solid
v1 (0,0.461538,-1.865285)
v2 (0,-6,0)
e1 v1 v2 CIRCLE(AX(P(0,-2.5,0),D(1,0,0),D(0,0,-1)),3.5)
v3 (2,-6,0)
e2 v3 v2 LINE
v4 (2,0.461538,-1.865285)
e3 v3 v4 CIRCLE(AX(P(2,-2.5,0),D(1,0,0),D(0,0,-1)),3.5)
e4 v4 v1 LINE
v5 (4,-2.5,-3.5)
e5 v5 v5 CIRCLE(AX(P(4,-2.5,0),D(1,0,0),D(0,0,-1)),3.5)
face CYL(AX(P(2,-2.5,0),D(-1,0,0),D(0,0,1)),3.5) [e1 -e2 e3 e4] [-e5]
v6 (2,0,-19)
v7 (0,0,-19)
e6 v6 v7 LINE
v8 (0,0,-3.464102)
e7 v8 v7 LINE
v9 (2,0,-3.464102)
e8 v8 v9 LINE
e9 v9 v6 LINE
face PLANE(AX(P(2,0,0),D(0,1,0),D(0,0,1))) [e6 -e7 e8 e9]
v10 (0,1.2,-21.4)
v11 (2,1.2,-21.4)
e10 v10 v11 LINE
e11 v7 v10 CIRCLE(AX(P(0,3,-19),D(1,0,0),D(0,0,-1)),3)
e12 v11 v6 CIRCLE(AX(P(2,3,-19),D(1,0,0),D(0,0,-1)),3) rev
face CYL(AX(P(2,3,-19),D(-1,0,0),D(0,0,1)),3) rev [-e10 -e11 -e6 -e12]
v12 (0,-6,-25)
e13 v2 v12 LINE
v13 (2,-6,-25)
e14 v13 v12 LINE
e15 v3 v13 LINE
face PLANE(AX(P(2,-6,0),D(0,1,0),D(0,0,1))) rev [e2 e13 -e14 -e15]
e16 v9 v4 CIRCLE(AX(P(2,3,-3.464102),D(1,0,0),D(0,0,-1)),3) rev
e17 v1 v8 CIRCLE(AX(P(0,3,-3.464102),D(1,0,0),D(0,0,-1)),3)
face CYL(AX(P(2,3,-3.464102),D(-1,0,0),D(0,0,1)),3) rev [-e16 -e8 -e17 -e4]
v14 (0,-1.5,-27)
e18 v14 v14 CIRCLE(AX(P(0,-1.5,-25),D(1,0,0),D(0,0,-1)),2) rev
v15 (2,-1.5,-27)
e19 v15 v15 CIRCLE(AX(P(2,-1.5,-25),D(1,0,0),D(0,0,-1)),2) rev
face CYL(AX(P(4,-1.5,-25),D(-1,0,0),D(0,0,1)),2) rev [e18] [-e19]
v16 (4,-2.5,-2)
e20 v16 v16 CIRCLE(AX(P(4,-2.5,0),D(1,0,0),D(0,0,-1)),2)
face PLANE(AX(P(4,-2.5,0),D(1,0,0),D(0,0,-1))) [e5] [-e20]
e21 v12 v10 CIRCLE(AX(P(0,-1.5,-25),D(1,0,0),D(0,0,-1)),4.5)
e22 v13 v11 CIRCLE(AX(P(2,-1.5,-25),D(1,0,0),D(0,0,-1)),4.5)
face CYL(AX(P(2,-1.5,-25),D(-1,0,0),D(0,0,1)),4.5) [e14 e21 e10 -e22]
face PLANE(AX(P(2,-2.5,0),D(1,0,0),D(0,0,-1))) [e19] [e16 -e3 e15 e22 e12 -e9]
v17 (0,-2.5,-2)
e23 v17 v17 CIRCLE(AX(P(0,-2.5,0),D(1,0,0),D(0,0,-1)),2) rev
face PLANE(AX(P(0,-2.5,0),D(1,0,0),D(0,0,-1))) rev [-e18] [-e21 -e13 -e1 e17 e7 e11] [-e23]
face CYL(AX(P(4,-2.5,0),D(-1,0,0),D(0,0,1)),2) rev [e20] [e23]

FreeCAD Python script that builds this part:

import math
import FreeCAD as App
import Part
import Sketcher


def edges_at(feature, points):
    """Names of the edges that pass closest to the given points."""
    edges = feature.Shape.Edges
    near = lambda p: min(range(len(edges)), key=lambda i: edges[i].distToShape(Part.Vertex(*p))[0])
    return sorted({f"Edge{near(p) + 1}" for p in points})

doc = App.newDocument("Part")
body = doc.addObject("PartDesign::Body", "Body")

# Sketch on YZ plane
sketch1 = doc.addObject("Sketcher::SketchObject", "Sketch")
body.addObject(sketch1)
sketch1.AttachmentSupport = (doc.YZ_Plane, [""])
sketch1.MapMode = "FlatFace"
sketch1.addGeometry(Part.ArcOfCircle(Part.Circle(App.Vector(-2.5, 0, 0), App.Vector(0, 0, 1), 3.5), math.radians(-44), math.radians(180)), False)
sketch1.addGeometry(Part.LineSegment(App.Vector(-6, 0, 0), App.Vector(-6, -25, 0)), False)
sketch1.addGeometry(Part.ArcOfCircle(Part.Circle(App.Vector(-1.5, -25, 0), App.Vector(0, 0, 1), 4.5), math.radians(180), math.radians(431)), False)
sketch1.addGeometry(Part.LineSegment(App.Vector(0, -20.8, 0), App.Vector(0, -2.4, 0)), False)
sketch1.addConstraint(Sketcher.Constraint("Tangent", 0, 2, 1, 1))
sketch1.addConstraint(Sketcher.Constraint("Tangent", 1, 2, 2, 1))
sketch1.addConstraint(Sketcher.Constraint("Coincident", 2, 2, 3, 1))
sketch1.addConstraint(Sketcher.Constraint("Coincident", 3, 2, 0, 1))
sketch1.addConstraint(Sketcher.Constraint("Vertical", 1))
sketch1.addConstraint(Sketcher.Constraint("Vertical", 3))
sketch1.addConstraint(Sketcher.Constraint("PointOnObject", 0, 3, -1))
sketch1.addConstraint(Sketcher.Constraint("PointOnObject", 2, 2, -2))
sketch1.addConstraint(Sketcher.Constraint("Radius", 0, 3.5))
sketch1.addConstraint(Sketcher.Constraint("Radius", 2, 4.5))
sketch1.addConstraint(Sketcher.Constraint("DistanceY", 1, 2, 1, 1, 25.0))
sketch1.addConstraint(Sketcher.Constraint("DistanceX", 0, 2, -1, 1, 6.0))
pad1 = doc.addObject("PartDesign::Pad", "Pad")
body.addObject(pad1)
pad1.Profile = sketch1
pad1.Length = 2

# Sketch on YZ plane
sketch2 = doc.addObject("Sketcher::SketchObject", "Sketch001")
body.addObject(sketch2)
sketch2.AttachmentSupport = (doc.YZ_Plane, [""])
sketch2.MapMode = "FlatFace"
sketch2.AttachmentOffset = App.Placement(App.Vector(0, 0, 2), App.Rotation())
sketch2.addGeometry(Part.Circle(App.Vector(-2.5, 0, 0), App.Vector(0, 0, 1), 3.5), False)
sketch2.addConstraint(Sketcher.Constraint("PointOnObject", 0, 3, -1))
sketch2.addConstraint(Sketcher.Constraint("Diameter", 0, 7.0))
sketch2.addConstraint(Sketcher.Constraint("DistanceX", 0, 3, -1, 1, 2.5))
pad2 = doc.addObject("PartDesign::Pad", "Pad001")
body.addObject(pad2)
pad2.Profile = sketch2
pad2.Length = 2

# Sketch on YZ plane
sketch3 = doc.addObject("Sketcher::SketchObject", "Sketch002")
body.addObject(sketch3)
sketch3.AttachmentSupport = (doc.YZ_Plane, [""])
sketch3.MapMode = "FlatFace"
sketch3.addGeometry(Part.Circle(App.Vector(-2.5, 0, 0), App.Vector(0, 0, 1), 2), False)
sketch3.addGeometry(Part.Circle(App.Vector(-1.5, -25, 0), App.Vector(0, 0, 1), 2), False)
sketch3.addConstraint(Sketcher.Constraint("Equal", 0, 1))
sketch3.addConstraint(Sketcher.Constraint("PointOnObject", 0, 3, -1))
sketch3.addConstraint(Sketcher.Constraint("Diameter", 0, 4.0))
sketch3.addConstraint(Sketcher.Constraint("DistanceY", 1, 3, -1, 1, 25.0))
sketch3.addConstraint(Sketcher.Constraint("DistanceX", 0, 3, 1, 3, 1.0))
sketch3.addConstraint(Sketcher.Constraint("DistanceX", 0, 3, -1, 1, 2.5))
pocket1 = doc.addObject("PartDesign::Pocket", "Pocket")
body.addObject(pocket1)
pocket1.Profile = sketch3
pocket1.Type = "ThroughAll"
pocket1.Midplane = True
doc.recompute()

fillet = doc.addObject("PartDesign::Fillet", "Fillet")
body.addObject(fillet)
fillet.Base = (pocket1, edges_at(pocket1, [(1, 0, -20.757), (1, 0, -2.449)]))
fillet.Radius = 3

doc.recompute()
